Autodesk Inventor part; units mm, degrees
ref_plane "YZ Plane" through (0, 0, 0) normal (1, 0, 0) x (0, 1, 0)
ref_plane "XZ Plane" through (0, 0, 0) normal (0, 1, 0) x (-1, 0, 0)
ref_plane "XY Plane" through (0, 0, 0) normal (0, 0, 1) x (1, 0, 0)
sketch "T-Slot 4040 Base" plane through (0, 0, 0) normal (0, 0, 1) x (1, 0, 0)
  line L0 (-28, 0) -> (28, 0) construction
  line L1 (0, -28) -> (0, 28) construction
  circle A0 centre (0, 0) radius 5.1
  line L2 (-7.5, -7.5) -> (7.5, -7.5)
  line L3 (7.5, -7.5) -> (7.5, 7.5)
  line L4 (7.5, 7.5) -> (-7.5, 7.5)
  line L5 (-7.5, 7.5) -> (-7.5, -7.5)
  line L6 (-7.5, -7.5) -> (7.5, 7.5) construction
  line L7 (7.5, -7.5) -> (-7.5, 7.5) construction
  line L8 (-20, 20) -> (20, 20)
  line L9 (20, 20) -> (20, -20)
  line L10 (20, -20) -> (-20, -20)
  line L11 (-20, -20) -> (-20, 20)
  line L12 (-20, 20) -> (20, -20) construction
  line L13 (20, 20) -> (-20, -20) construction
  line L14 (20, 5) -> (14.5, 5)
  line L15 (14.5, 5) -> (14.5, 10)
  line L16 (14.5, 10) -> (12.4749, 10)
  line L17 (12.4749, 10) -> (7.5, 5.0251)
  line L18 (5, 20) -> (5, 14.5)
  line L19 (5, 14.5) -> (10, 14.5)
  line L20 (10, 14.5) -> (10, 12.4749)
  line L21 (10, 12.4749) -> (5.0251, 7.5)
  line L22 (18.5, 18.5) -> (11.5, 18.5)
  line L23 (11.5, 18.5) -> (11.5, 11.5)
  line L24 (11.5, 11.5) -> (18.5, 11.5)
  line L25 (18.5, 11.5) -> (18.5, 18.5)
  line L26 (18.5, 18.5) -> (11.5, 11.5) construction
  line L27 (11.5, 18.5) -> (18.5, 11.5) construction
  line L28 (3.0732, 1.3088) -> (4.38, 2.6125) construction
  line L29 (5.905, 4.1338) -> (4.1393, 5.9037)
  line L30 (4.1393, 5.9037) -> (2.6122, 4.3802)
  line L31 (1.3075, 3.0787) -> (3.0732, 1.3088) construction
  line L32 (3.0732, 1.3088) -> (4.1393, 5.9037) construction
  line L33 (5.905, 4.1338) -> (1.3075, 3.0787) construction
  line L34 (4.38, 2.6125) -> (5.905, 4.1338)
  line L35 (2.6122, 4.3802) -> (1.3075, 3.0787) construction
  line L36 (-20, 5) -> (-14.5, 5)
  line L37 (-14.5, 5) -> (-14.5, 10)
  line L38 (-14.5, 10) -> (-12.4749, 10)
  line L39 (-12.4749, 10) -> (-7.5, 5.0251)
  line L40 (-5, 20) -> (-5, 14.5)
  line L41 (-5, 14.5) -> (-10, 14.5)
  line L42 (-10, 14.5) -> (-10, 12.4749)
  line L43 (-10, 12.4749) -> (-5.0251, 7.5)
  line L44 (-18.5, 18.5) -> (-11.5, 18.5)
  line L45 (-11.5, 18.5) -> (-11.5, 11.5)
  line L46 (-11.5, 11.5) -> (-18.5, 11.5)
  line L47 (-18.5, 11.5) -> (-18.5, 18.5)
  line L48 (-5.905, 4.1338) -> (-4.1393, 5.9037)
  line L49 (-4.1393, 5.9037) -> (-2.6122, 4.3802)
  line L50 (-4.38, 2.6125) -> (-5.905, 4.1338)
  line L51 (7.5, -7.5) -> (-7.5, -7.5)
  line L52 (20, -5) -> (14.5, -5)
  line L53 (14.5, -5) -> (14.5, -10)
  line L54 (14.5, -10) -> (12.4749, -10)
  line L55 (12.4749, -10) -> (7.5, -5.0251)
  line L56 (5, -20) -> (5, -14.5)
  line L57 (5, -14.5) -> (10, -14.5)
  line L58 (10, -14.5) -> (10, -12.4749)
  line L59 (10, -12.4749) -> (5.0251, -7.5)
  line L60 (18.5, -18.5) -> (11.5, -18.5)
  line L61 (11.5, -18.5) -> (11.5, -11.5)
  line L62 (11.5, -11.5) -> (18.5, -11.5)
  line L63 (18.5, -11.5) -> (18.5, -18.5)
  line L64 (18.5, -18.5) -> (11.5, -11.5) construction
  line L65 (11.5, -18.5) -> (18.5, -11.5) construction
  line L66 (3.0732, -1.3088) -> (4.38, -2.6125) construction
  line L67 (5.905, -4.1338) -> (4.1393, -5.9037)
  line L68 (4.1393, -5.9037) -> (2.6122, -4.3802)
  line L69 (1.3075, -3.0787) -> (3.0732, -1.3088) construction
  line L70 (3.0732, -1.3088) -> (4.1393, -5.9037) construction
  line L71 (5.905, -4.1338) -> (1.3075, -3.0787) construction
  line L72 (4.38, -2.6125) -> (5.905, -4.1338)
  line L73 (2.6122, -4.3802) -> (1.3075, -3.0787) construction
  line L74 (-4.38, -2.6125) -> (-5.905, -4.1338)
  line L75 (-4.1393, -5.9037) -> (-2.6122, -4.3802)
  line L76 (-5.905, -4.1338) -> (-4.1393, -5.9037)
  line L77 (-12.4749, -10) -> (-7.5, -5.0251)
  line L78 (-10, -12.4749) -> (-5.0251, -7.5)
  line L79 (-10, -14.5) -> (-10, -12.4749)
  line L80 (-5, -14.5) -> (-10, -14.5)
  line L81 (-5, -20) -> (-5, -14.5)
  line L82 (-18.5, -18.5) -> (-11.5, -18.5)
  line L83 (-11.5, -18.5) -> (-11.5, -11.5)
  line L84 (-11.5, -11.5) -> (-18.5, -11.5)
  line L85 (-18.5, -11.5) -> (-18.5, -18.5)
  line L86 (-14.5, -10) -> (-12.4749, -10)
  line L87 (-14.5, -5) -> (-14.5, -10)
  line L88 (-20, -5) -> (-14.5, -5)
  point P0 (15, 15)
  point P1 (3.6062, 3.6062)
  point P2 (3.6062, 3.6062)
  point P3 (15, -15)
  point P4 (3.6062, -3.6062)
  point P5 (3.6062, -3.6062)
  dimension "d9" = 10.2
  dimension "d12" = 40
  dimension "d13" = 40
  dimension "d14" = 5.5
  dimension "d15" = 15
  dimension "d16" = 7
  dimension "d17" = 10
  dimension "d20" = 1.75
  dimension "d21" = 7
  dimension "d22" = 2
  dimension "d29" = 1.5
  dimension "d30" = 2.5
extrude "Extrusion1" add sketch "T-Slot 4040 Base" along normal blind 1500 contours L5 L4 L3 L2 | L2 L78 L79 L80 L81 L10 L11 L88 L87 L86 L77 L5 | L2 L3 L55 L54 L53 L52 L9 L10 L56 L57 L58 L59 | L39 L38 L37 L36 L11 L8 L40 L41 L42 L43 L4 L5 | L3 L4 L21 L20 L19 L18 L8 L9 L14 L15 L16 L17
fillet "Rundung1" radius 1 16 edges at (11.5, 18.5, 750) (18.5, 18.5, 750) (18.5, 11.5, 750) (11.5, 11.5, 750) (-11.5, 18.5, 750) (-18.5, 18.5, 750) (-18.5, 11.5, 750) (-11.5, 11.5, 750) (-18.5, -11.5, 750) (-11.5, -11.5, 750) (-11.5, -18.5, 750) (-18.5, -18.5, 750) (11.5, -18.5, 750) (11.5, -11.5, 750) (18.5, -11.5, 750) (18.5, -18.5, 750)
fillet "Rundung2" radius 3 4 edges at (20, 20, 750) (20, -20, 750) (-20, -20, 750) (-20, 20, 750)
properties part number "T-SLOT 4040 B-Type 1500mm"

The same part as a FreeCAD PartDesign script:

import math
import FreeCAD as App
import Part
import Sketcher

V = App.Vector
Q = App.Units.Quantity


def edges_at(feature, points):
    """Names of the edges that pass closest to the given points."""
    edges = feature.Shape.Edges
    near = lambda p: min(range(len(edges)), key=lambda i: edges[i].distToShape(Part.Vertex(*p))[0])
    return sorted({f"Edge{near(p) + 1}" for p in points})

doc = App.newDocument("Part")
body = doc.addObject("PartDesign::Body", "Body")

sketch1 = doc.addObject("Sketcher::SketchObject", "Sketch")
body.addObject(sketch1)
sketch1.AttachmentSupport = (doc.XY_Plane, [""])
sketch1.MapMode = "FlatFace"
sketch1.addGeometry([
    Part.LineSegment(V(-7.5, 5, 0), V(-7.5, -5, 0)),
    Part.LineSegment(V(-7.5, -5, 0), V(-12.5, -10, 0)),
    Part.LineSegment(V(-12.5, -10, 0), V(-14.5, -10, 0)),
    Part.LineSegment(V(-14.5, -10, 0), V(-14.5, -5, 0)),
    Part.LineSegment(V(-14.5, -5, 0), V(-20, -5, 0)),
    Part.LineSegment(V(-20, -5, 0), V(-20, -20, 0)),
    Part.LineSegment(V(-20, -20, 0), V(-5, -20, 0)),
    Part.LineSegment(V(-5, -20, 0), V(-5, -14.5, 0)),
    Part.LineSegment(V(-5, -14.5, 0), V(-10, -14.5, 0)),
    Part.LineSegment(V(-10, -14.5, 0), V(-10, -12.5, 0)),
    Part.LineSegment(V(-10, -12.5, 0), V(-5, -7.5, 0)),
    Part.LineSegment(V(-5, -7.5, 0), V(5, -7.5, 0)),
    Part.LineSegment(V(5, -7.5, 0), V(10, -12.5, 0)),
    Part.LineSegment(V(10, -12.5, 0), V(10, -14.5, 0)),
    Part.LineSegment(V(10, -14.5, 0), V(5, -14.5, 0)),
    Part.LineSegment(V(5, -14.5, 0), V(5, -20, 0)),
    Part.LineSegment(V(5, -20, 0), V(20, -20, 0)),
    Part.LineSegment(V(20, -20, 0), V(20, -5, 0)),
    Part.LineSegment(V(20, -5, 0), V(14.5, -5, 0)),
    Part.LineSegment(V(14.5, -5, 0), V(14.5, -10, 0)),
    Part.LineSegment(V(14.5, -10, 0), V(12.5, -10, 0)),
    Part.LineSegment(V(12.5, -10, 0), V(7.5, -5, 0)),
    Part.LineSegment(V(7.5, -5, 0), V(7.5, 5, 0)),
    Part.LineSegment(V(7.5, 5, 0), V(12.5, 10, 0)),
    Part.LineSegment(V(12.5, 10, 0), V(14.5, 10, 0)),
    Part.LineSegment(V(14.5, 10, 0), V(14.5, 5, 0)),
    Part.LineSegment(V(14.5, 5, 0), V(20, 5, 0)),
    Part.LineSegment(V(20, 5, 0), V(20, 20, 0)),
    Part.LineSegment(V(20, 20, 0), V(5, 20, 0)),
    Part.LineSegment(V(5, 20, 0), V(5, 14.5, 0)),
    Part.LineSegment(V(5, 14.5, 0), V(10, 14.5, 0)),
    Part.LineSegment(V(10, 14.5, 0), V(10, 12.5, 0)),
    Part.LineSegment(V(10, 12.5, 0), V(5, 7.5, 0)),
    Part.LineSegment(V(5, 7.5, 0), V(-5, 7.5, 0)),
    Part.LineSegment(V(-5, 7.5, 0), V(-10, 12.5, 0)),
    Part.LineSegment(V(-10, 12.5, 0), V(-10, 14.5, 0)),
    Part.LineSegment(V(-10, 14.5, 0), V(-5, 14.5, 0)),
    Part.LineSegment(V(-5, 14.5, 0), V(-5, 20, 0)),
    Part.LineSegment(V(-5, 20, 0), V(-20, 20, 0)),
    Part.LineSegment(V(-20, 20, 0), V(-20, 5, 0)),
    Part.LineSegment(V(-20, 5, 0), V(-14.5, 5, 0)),
    Part.LineSegment(V(-14.5, 5, 0), V(-14.5, 10, 0)),
    Part.LineSegment(V(-14.5, 10, 0), V(-12.5, 10, 0)),
    Part.LineSegment(V(-12.5, 10, 0), V(-7.5, 5, 0)),
    Part.ArcOfCircle(Part.Circle(V(0, 0, 0), V(0, 0, 1), 5.1), math.radians(-31), math.radians(31)),
    Part.LineSegment(V(4.4, -2.6, 0), V(5.9, -4.1, 0)),
    Part.LineSegment(V(5.9, -4.1, 0), V(4.1, -5.9, 0)),
    Part.LineSegment(V(4.1, -5.9, 0), V(2.6, -4.4, 0)),
    Part.ArcOfCircle(Part.Circle(V(0, 0, 0), V(0, 0, 1), 5.1), math.radians(-121), math.radians(-59)),
    Part.LineSegment(V(-2.6, -4.4, 0), V(-4.1, -5.9, 0)),
    Part.LineSegment(V(-4.1, -5.9, 0), V(-5.9, -4.1, 0)),
    Part.LineSegment(V(-5.9, -4.1, 0), V(-4.4, -2.6, 0)),
    Part.ArcOfCircle(Part.Circle(V(0, 0, 0), V(0, 0, 1), 5.1), math.radians(149), math.radians(211)),
    Part.LineSegment(V(-4.4, 2.6, 0), V(-5.9, 4.1, 0)),
    Part.LineSegment(V(-5.9, 4.1, 0), V(-4.1, 5.9, 0)),
    Part.LineSegment(V(-4.1, 5.9, 0), V(-2.6, 4.4, 0)),
    Part.ArcOfCircle(Part.Circle(V(0, 0, 0), V(0, 0, 1), 5.1), math.radians(59), math.radians(121)),
    Part.LineSegment(V(2.6, 4.4, 0), V(4.1, 5.9, 0)),
    Part.LineSegment(V(4.1, 5.9, 0), V(5.9, 4.1, 0)),
    Part.LineSegment(V(5.9, 4.1, 0), V(4.4, 2.6, 0)),
    Part.LineSegment(V(-18.5, -11.5, 0), V(-11.5, -11.5, 0)),
    Part.LineSegment(V(-11.5, -11.5, 0), V(-11.5, -18.5, 0)),
    Part.LineSegment(V(-11.5, -18.5, 0), V(-18.5, -18.5, 0)),
    Part.LineSegment(V(-18.5, -18.5, 0), V(-18.5, -11.5, 0)),
    Part.LineSegment(V(-11.5, 18.5, 0), V(-11.5, 11.5, 0)),
    Part.LineSegment(V(-11.5, 11.5, 0), V(-18.5, 11.5, 0)),
    Part.LineSegment(V(-18.5, 11.5, 0), V(-18.5, 18.5, 0)),
    Part.LineSegment(V(-18.5, 18.5, 0), V(-11.5, 18.5, 0)),
    Part.LineSegment(V(18.5, 11.5, 0), V(11.5, 11.5, 0)),
    Part.LineSegment(V(11.5, 11.5, 0), V(11.5, 18.5, 0)),
    Part.LineSegment(V(11.5, 18.5, 0), V(18.5, 18.5, 0)),
    Part.LineSegment(V(18.5, 18.5, 0), V(18.5, 11.5, 0)),
    Part.LineSegment(V(11.5, -18.5, 0), V(11.5, -11.5, 0)),
    Part.LineSegment(V(11.5, -11.5, 0), V(18.5, -11.5, 0)),
    Part.LineSegment(V(18.5, -11.5, 0), V(18.5, -18.5, 0)),
    Part.LineSegment(V(18.5, -18.5, 0), V(11.5, -18.5, 0)),
], False)
sketch1.addConstraint([
    Sketcher.Constraint("Coincident", 0, 2, 1, 1),
    Sketcher.Constraint("Coincident", 1, 2, 2, 1),
    Sketcher.Constraint("Coincident", 2, 2, 3, 1),
    Sketcher.Constraint("Coincident", 3, 2, 4, 1),
    Sketcher.Constraint("Coincident", 4, 2, 5, 1),
    Sketcher.Constraint("Coincident", 5, 2, 6, 1),
    Sketcher.Constraint("Coincident", 6, 2, 7, 1),
    Sketcher.Constraint("Coincident", 7, 2, 8, 1),
    Sketcher.Constraint("Coincident", 8, 2, 9, 1),
    Sketcher.Constraint("Coincident", 9, 2, 10, 1),
    Sketcher.Constraint("Coincident", 10, 2, 11, 1),
    Sketcher.Constraint("Coincident", 11, 2, 12, 1),
    Sketcher.Constraint("Coincident", 12, 2, 13, 1),
    Sketcher.Constraint("Coincident", 13, 2, 14, 1),
    Sketcher.Constraint("Coincident", 14, 2, 15, 1),
    Sketcher.Constraint("Coincident", 15, 2, 16, 1),
    Sketcher.Constraint("Coincident", 16, 2, 17, 1),
    Sketcher.Constraint("Coincident", 17, 2, 18, 1),
    Sketcher.Constraint("Coincident", 18, 2, 19, 1),
    Sketcher.Constraint("Coincident", 19, 2, 20, 1),
    Sketcher.Constraint("Coincident", 20, 2, 21, 1),
    Sketcher.Constraint("Coincident", 21, 2, 22, 1),
    Sketcher.Constraint("Coincident", 22, 2, 23, 1),
    Sketcher.Constraint("Coincident", 23, 2, 24, 1),
    Sketcher.Constraint("Coincident", 24, 2, 25, 1),
    Sketcher.Constraint("Coincident", 25, 2, 26, 1),
    Sketcher.Constraint("Coincident", 26, 2, 27, 1),
    Sketcher.Constraint("Coincident", 27, 2, 28, 1),
    Sketcher.Constraint("Coincident", 28, 2, 29, 1),
    Sketcher.Constraint("Coincident", 29, 2, 30, 1),
    Sketcher.Constraint("Coincident", 30, 2, 31, 1),
    Sketcher.Constraint("Coincident", 31, 2, 32, 1),
    Sketcher.Constraint("Coincident", 32, 2, 33, 1),
    Sketcher.Constraint("Coincident", 33, 2, 34, 1),
    Sketcher.Constraint("Coincident", 34, 2, 35, 1),
    Sketcher.Constraint("Coincident", 35, 2, 36, 1),
    Sketcher.Constraint("Coincident", 36, 2, 37, 1),
    Sketcher.Constraint("Coincident", 37, 2, 38, 1),
    Sketcher.Constraint("Coincident", 38, 2, 39, 1),
    Sketcher.Constraint("Coincident", 39, 2, 40, 1),
    Sketcher.Constraint("Coincident", 40, 2, 41, 1),
    Sketcher.Constraint("Coincident", 41, 2, 42, 1),
    Sketcher.Constraint("Coincident", 42, 2, 43, 1),
    Sketcher.Constraint("Coincident", 43, 2, 0, 1),
    Sketcher.Constraint("Coincident", 44, 1, 45, 1),
    Sketcher.Constraint("Coincident", 45, 2, 46, 1),
    Sketcher.Constraint("Coincident", 46, 2, 47, 1),
    Sketcher.Constraint("Coincident", 47, 2, 48, 2),
    Sketcher.Constraint("Coincident", 48, 1, 49, 1),
    Sketcher.Constraint("Coincident", 49, 2, 50, 1),
    Sketcher.Constraint("Coincident", 50, 2, 51, 1),
    Sketcher.Constraint("Coincident", 51, 2, 52, 2),
    Sketcher.Constraint("Coincident", 52, 1, 53, 1),
    Sketcher.Constraint("Coincident", 53, 2, 54, 1),
    Sketcher.Constraint("Coincident", 54, 2, 55, 1),
    Sketcher.Constraint("Coincident", 55, 2, 56, 2),
    Sketcher.Constraint("Coincident", 56, 1, 57, 1),
    Sketcher.Constraint("Coincident", 57, 2, 58, 1),
    Sketcher.Constraint("Coincident", 58, 2, 59, 1),
    Sketcher.Constraint("Coincident", 59, 2, 44, 2),
    Sketcher.Constraint("Coincident", 60, 2, 61, 1),
    Sketcher.Constraint("Coincident", 61, 2, 62, 1),
    Sketcher.Constraint("Coincident", 62, 2, 63, 1),
    Sketcher.Constraint("Coincident", 63, 2, 60, 1),
    Sketcher.Constraint("Coincident", 64, 2, 65, 1),
    Sketcher.Constraint("Coincident", 65, 2, 66, 1),
    Sketcher.Constraint("Coincident", 66, 2, 67, 1),
    Sketcher.Constraint("Coincident", 67, 2, 64, 1),
    Sketcher.Constraint("Coincident", 68, 2, 69, 1),
    Sketcher.Constraint("Coincident", 69, 2, 70, 1),
    Sketcher.Constraint("Coincident", 70, 2, 71, 1),
    Sketcher.Constraint("Coincident", 71, 2, 68, 1),
    Sketcher.Constraint("Coincident", 72, 2, 73, 1),
    Sketcher.Constraint("Coincident", 73, 2, 74, 1),
    Sketcher.Constraint("Coincident", 74, 2, 75, 1),
    Sketcher.Constraint("Coincident", 75, 2, 72, 1),
    Sketcher.Constraint("Vertical", 0),
    Sketcher.Constraint("Horizontal", 2),
    Sketcher.Constraint("Vertical", 3),
    Sketcher.Constraint("Horizontal", 4),
    Sketcher.Constraint("Vertical", 5),
    Sketcher.Constraint("Horizontal", 6),
    Sketcher.Constraint("Vertical", 7),
    Sketcher.Constraint("Horizontal", 8),
    Sketcher.Constraint("Vertical", 9),
    Sketcher.Constraint("Horizontal", 11),
    Sketcher.Constraint("Vertical", 13),
    Sketcher.Constraint("Horizontal", 14),
    Sketcher.Constraint("Vertical", 15),
    Sketcher.Constraint("Horizontal", 16),
    Sketcher.Constraint("Vertical", 17),
    Sketcher.Constraint("Horizontal", 18),
    Sketcher.Constraint("Vertical", 19),
    Sketcher.Constraint("Horizontal", 20),
    Sketcher.Constraint("Vertical", 22),
    Sketcher.Constraint("Horizontal", 24),
    Sketcher.Constraint("Vertical", 25),
    Sketcher.Constraint("Horizontal", 26),
    Sketcher.Constraint("Vertical", 27),
    Sketcher.Constraint("Horizontal", 28),
    Sketcher.Constraint("Vertical", 29),
    Sketcher.Constraint("Horizontal", 30),
    Sketcher.Constraint("Vertical", 31),
    Sketcher.Constraint("Horizontal", 33),
    Sketcher.Constraint("Vertical", 35),
    Sketcher.Constraint("Horizontal", 36),
    Sketcher.Constraint("Vertical", 37),
    Sketcher.Constraint("Horizontal", 38),
    Sketcher.Constraint("Vertical", 39),
    Sketcher.Constraint("Horizontal", 40),
    Sketcher.Constraint("Vertical", 41),
    Sketcher.Constraint("Horizontal", 42),
    Sketcher.Constraint("Horizontal", 60),
    Sketcher.Constraint("Vertical", 61),
    Sketcher.Constraint("Horizontal", 62),
    Sketcher.Constraint("Vertical", 63),
    Sketcher.Constraint("Vertical", 64),
    Sketcher.Constraint("Horizontal", 65),
    Sketcher.Constraint("Vertical", 66),
    Sketcher.Constraint("Horizontal", 67),
    Sketcher.Constraint("Horizontal", 68),
    Sketcher.Constraint("Vertical", 69),
    Sketcher.Constraint("Horizontal", 70),
    Sketcher.Constraint("Vertical", 71),
    Sketcher.Constraint("Vertical", 72),
    Sketcher.Constraint("Horizontal", 73),
    Sketcher.Constraint("Vertical", 74),
    Sketcher.Constraint("Horizontal", 75),
    Sketcher.Constraint("Coincident", 44, 3, -1, 1),
    Sketcher.Constraint("Coincident", 48, 3, -1, 1),
    Sketcher.Constraint("Coincident", 52, 3, -1, 1),
    Sketcher.Constraint("Coincident", 56, 3, -1, 1),
    Sketcher.Constraint("Equal", 44, 48),
    Sketcher.Constraint("Equal", 48, 52),
    Sketcher.Constraint("Equal", 52, 56),
    Sketcher.Constraint("Symmetric", 0, 2, 22, 2, -1, 1),
    Sketcher.Constraint("Symmetric", 1, 2, 23, 2, -1, 1),
    Sketcher.Constraint("Symmetric", 3, 2, 25, 2, -1, 1),
    Sketcher.Constraint("Symmetric", 5, 2, 27, 2, -1, 1),
    Sketcher.Constraint("Symmetric", 7, 2, 29, 2, -1, 1),
    Sketcher.Constraint("Symmetric", 9, 2, 31, 2, -1, 1),
    Sketcher.Constraint("Symmetric", 10, 2, 32, 2, -1, 1),
    Sketcher.Constraint("Symmetric", 12, 2, 34, 2, -1, 1),
    Sketcher.Constraint("Symmetric", 14, 2, 36, 2, -1, 1),
    Sketcher.Constraint("Symmetric", 16, 2, 38, 2, -1, 1),
    Sketcher.Constraint("Symmetric", 18, 2, 40, 2, -1, 1),
    Sketcher.Constraint("Symmetric", 20, 2, 42, 2, -1, 1),
    Sketcher.Constraint("Symmetric", 45, 2, 53, 2, -1, 1),
    Sketcher.Constraint("Symmetric", 46, 2, 54, 2, -1, 1),
    Sketcher.Constraint("Symmetric", 49, 2, 57, 2, -1, 1),
    Sketcher.Constraint("Symmetric", 50, 2, 58, 2, -1, 1),
    Sketcher.Constraint("Symmetric", 60, 2, 68, 2, -1, 1),
    Sketcher.Constraint("Symmetric", 62, 2, 70, 2, -1, 1),
    Sketcher.Constraint("Symmetric", 64, 2, 72, 2, -1, 1),
    Sketcher.Constraint("Symmetric", 66, 2, 74, 2, -1, 1),
    Sketcher.Constraint("Symmetric", 9, 2, 12, 2, -2),
    Sketcher.Constraint("Symmetric", 7, 2, 14, 2, -2),
    Sketcher.Constraint("Symmetric", 5, 2, 16, 2, -2),
    Sketcher.Constraint("Symmetric", 3, 2, 18, 2, -2),
    Sketcher.Constraint("Symmetric", 1, 2, 20, 2, -2),
    Sketcher.Constraint("Symmetric", 46, 2, 49, 2, -2),
    Sketcher.Constraint("Symmetric", 45, 2, 50, 2, -2),
    Sketcher.Constraint("Symmetric", 64, 2, 68, 2, -2),
    Sketcher.Constraint("Symmetric", 66, 2, 70, 2, -2),
    Sketcher.Constraint("Parallel", 1, 10),
    Sketcher.Constraint("Perpendicular", 10, 12),
    Sketcher.Constraint("Parallel", 12, 21),
    Sketcher.Constraint("Perpendicular", 32, 34),
    Sketcher.Constraint("Parallel", 34, 43),
    Sketcher.Constraint("Perpendicular", 45, 46),
    Sketcher.Constraint("Perpendicular", 46, 47),
    Sketcher.Constraint("Perpendicular", 49, 50),
    Sketcher.Constraint("Perpendicular", 50, 51),
    Sketcher.Constraint("Parallel", 47, 53),
    Sketcher.Constraint("Perpendicular", 54, 55),
    Sketcher.Constraint("Parallel", 51, 57),
    Sketcher.Constraint("Perpendicular", 58, 59),
    Sketcher.Constraint("Horizontal", 0, 2, 21, 2),
    Sketcher.Constraint("Equal", 33, 0),
    Sketcher.Constraint("Equal", 36, 3),
    Sketcher.Constraint("Equal", 38, 5),
    Sketcher.Constraint("Equal", 40, 7),
    Sketcher.Constraint("Equal", 42, 9),
    Sketcher.Constraint("Equal", 75, 61),
    Sketcher.Constraint("Equal", 1, 10),
    Sketcher.Constraint("Radius", 44, Q("5.1 mm")),
    Sketcher.Constraint("DistanceX", 6, 1, 6, 2, Q("15 mm")),
    Sketcher.Constraint("DistanceX", 60, 1, 60, 2, Q("7 mm")),
    Sketcher.Constraint("DistanceX", 4, 2, 4, 1, Q("5.5 mm")),
    Sketcher.Constraint("DistanceY", 1, 2, -1, 1, Q("10 mm")),
    Sketcher.Constraint("Distance", 46, Q("2.5 mm")),
    Sketcher.Constraint("DistanceX", 8, 2, 8, 1, Q("5 mm")),
    Sketcher.Constraint("DistanceX", 0, 2, -1, 1, Q("7.5 mm")),
    Sketcher.Constraint("DistanceX", 60, 2, -1, 1, Q("11.5 mm")),
    Sketcher.Constraint("DistanceY", 60, 2, -1, 1, Q("11.5 mm")),
    Sketcher.Constraint("Angle", 45, Q("-44.9304 deg")),
    Sketcher.Constraint("DistanceX", 2, 2, 2, 1, Q("2.025 mm")),
    Sketcher.Constraint("DistanceX", -1, 1, 44, 1, Q("4.38 mm")),
    Sketcher.Constraint("Distance", 45, Q("2.154 mm")),
])
pad1 = doc.addObject("PartDesign::Pad", "Pad")
body.addObject(pad1)
pad1.Profile = sketch1
pad1.Length = 1500
doc.recompute()

fillet = doc.addObject("PartDesign::Fillet", "Fillet")
body.addObject(fillet)
fillet.Base = (pad1, edges_at(pad1, [
    (11.5, 18.5, 750),
    (18.5, 18.5, 750),
    (18.5, 11.5, 750),
    (11.5, 11.5, 750),
    (-11.5, 18.5, 750),
    (-18.5, 18.5, 750),
    (-18.5, 11.5, 750),
    (-11.5, 11.5, 750),
    (-18.5, -11.5, 750),
    (-11.5, -11.5, 750),
    (-11.5, -18.5, 750),
    (-18.5, -18.5, 750),
    (11.5, -18.5, 750),
    (11.5, -11.5, 750),
    (18.5, -11.5, 750),
    (18.5, -18.5, 750),
]))
fillet.Radius = 1
doc.recompute()

fillet2 = doc.addObject("PartDesign::Fillet", "Fillet001")
body.addObject(fillet2)
fillet2.Base = (fillet, edges_at(fillet, [
    (20, 20, 750),
    (20, -20, 750),
    (-20, -20, 750),
    (-20, 20, 750),
]))
fillet2.Radius = 3

doc.recompute()
